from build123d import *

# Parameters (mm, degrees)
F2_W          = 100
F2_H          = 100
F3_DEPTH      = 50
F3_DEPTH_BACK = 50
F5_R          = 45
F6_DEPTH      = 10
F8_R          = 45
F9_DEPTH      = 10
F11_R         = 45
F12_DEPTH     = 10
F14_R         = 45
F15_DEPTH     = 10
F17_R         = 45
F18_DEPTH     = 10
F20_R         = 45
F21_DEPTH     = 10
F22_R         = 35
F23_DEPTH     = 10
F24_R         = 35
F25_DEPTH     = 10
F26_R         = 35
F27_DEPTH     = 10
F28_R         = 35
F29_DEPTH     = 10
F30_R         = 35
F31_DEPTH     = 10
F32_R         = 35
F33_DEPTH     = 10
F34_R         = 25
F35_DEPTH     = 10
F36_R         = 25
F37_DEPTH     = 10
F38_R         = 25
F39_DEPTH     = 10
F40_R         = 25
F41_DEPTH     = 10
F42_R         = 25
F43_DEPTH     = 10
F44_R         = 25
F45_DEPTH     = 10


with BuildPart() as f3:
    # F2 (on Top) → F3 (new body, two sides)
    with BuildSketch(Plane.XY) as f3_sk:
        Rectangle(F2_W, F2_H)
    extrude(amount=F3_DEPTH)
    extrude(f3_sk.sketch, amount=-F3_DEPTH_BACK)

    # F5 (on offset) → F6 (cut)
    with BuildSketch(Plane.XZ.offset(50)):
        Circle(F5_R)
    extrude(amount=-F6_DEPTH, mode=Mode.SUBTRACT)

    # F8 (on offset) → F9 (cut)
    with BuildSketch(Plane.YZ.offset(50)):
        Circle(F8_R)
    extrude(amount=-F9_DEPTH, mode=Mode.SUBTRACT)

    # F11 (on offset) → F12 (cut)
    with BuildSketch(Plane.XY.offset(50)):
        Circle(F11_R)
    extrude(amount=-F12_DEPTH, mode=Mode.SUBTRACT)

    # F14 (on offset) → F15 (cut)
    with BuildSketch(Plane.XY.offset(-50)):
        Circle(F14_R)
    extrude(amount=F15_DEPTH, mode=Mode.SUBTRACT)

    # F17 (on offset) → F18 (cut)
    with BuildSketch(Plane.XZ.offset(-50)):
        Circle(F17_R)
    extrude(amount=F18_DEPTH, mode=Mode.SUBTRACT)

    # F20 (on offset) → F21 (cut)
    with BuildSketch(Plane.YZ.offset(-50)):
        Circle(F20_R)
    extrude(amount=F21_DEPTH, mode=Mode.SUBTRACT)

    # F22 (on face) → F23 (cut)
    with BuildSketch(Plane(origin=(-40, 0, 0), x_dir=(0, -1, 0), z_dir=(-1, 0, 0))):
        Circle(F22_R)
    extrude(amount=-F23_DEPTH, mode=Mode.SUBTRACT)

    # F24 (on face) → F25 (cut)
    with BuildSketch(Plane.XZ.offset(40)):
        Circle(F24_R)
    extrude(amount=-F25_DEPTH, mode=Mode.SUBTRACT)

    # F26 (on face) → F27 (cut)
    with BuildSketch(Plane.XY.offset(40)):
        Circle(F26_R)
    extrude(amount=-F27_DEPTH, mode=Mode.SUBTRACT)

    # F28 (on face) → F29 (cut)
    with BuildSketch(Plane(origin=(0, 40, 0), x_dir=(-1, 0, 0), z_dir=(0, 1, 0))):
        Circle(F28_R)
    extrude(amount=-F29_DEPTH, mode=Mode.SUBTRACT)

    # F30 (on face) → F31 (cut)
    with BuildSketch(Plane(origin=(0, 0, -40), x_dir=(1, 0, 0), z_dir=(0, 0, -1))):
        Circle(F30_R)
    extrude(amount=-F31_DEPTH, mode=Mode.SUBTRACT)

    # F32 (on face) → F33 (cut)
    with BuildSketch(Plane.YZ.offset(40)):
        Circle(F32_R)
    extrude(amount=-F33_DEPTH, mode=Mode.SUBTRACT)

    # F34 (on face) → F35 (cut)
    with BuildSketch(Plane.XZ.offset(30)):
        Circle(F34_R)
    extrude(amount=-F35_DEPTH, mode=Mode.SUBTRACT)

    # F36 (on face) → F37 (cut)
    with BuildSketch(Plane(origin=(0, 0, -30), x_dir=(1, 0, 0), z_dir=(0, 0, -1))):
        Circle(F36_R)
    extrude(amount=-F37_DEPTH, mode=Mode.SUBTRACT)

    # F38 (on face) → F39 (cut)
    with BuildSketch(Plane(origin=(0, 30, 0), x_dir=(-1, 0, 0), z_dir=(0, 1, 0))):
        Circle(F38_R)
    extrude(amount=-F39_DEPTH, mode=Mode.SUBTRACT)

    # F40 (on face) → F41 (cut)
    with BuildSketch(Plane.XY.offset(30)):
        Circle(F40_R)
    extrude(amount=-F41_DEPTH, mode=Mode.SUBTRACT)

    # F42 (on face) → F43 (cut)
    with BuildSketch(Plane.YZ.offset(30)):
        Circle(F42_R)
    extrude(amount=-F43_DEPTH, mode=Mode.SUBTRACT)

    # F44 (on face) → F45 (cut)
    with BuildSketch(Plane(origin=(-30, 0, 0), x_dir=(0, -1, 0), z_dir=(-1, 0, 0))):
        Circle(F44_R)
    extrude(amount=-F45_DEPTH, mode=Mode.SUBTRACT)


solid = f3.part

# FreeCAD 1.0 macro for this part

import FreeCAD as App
import Part
import Sketcher

V = App.Vector
Q = App.Units.Quantity


def add_polygon(sketch, points):
    """Adds a closed chain of lines whose ends are joined by coincident constraints."""
    first, n = sketch.GeometryCount, len(points)
    for a, b in zip(points, points[1:] + points[:1]):
        sketch.addGeometry(Part.LineSegment(App.Vector(*a, 0), App.Vector(*b, 0)), False)
    for i in range(n):
        sketch.addConstraint(Sketcher.Constraint("Coincident", first + i, 2, first + (i + 1) % n, 1))

doc = App.newDocument("Part")
body = doc.addObject("PartDesign::Body", "Body")

# Sketch on XY plane
sketch1 = body.newObject("Sketcher::SketchObject", "Sketch")
sketch1.AttachmentSupport = (doc.getObject("XY_Plane"), [""])
sketch1.MapMode = "FlatFace"
add_polygon(sketch1, [(-50, 50), (-50, -50), (50, -50), (50, 50)])  # lines 0-3
sketch1.addConstraint(Sketcher.Constraint("Vertical", 0))
sketch1.addConstraint(Sketcher.Constraint("Horizontal", 1))
sketch1.addConstraint(Sketcher.Constraint("Vertical", 2))
sketch1.addConstraint(Sketcher.Constraint("Horizontal", 3))
sketch1.addConstraint(Sketcher.Constraint("Symmetric", 0, 2, 2, 2, -1, 1))
sketch1.addConstraint(Sketcher.Constraint("Equal", 3, 0))
sketch1.addConstraint(Sketcher.Constraint("DistanceX", 1, 1, 1, 2, Q("100 mm")))
pad1 = body.newObject("PartDesign::Pad", "Pad")
pad1.Profile = sketch1
pad1.Type = "TwoLengths"
pad1.Length = 50
pad1.Length2 = 50

# Sketch on XZ plane
sketch2 = body.newObject("Sketcher::SketchObject", "Sketch001")
sketch2.AttachmentSupport = (doc.getObject("XZ_Plane"), [""])
sketch2.MapMode = "FlatFace"
sketch2.AttachmentOffset = App.Placement(V(0, 0, 50), App.Rotation())
sketch2.addGeometry(Part.Circle(V(0, 0, 0), V(0, 0, 1), 45), False)
sketch2.addConstraint(Sketcher.Constraint("Coincident", 0, 3, -1, 1))
sketch2.addConstraint(Sketcher.Constraint("Diameter", 0, Q("90 mm")))
pocket1 = body.newObject("PartDesign::Pocket", "Pocket")
pocket1.Profile = sketch2
pocket1.Length = 10

# Sketch on YZ plane
sketch3 = body.newObject("Sketcher::SketchObject", "Sketch002")
sketch3.AttachmentSupport = (doc.getObject("YZ_Plane"), [""])
sketch3.MapMode = "FlatFace"
sketch3.AttachmentOffset = App.Placement(V(0, 0, 50), App.Rotation())
sketch3.addGeometry(Part.Circle(V(0, 0, 0), V(0, 0, 1), 45), False)
sketch3.addConstraint(Sketcher.Constraint("Coincident", 0, 3, -1, 1))
sketch3.addConstraint(Sketcher.Constraint("Diameter", 0, Q("90 mm")))
pocket2 = body.newObject("PartDesign::Pocket", "Pocket001")
pocket2.Profile = sketch3
pocket2.Length = 10

# Sketch on XY plane
sketch4 = body.newObject("Sketcher::SketchObject", "Sketch003")
sketch4.AttachmentSupport = (doc.getObject("XY_Plane"), [""])
sketch4.MapMode = "FlatFace"
sketch4.AttachmentOffset = App.Placement(V(0, 0, 50), App.Rotation())
sketch4.addGeometry(Part.Circle(V(0, 0, 0), V(0, 0, 1), 45), False)
sketch4.addConstraint(Sketcher.Constraint("Coincident", 0, 3, -1, 1))
sketch4.addConstraint(Sketcher.Constraint("Diameter", 0, Q("90 mm")))
pocket3 = body.newObject("PartDesign::Pocket", "Pocket002")
pocket3.Profile = sketch4
pocket3.Length = 10

# Sketch on XY plane
sketch5 = body.newObject("Sketcher::SketchObject", "Sketch004")
sketch5.AttachmentSupport = (doc.getObject("XY_Plane"), [""])
sketch5.MapMode = "FlatFace"
sketch5.AttachmentOffset = App.Placement(V(0, 0, -50), App.Rotation())
sketch5.addGeometry(Part.Circle(V(0, 0, 0), V(0, 0, 1), 45), False)
sketch5.addConstraint(Sketcher.Constraint("Coincident", 0, 3, -1, 1))
sketch5.addConstraint(Sketcher.Constraint("Diameter", 0, Q("90 mm")))
pocket4 = body.newObject("PartDesign::Pocket", "Pocket003")
pocket4.Profile = sketch5
pocket4.Length = 10
pocket4.Reversed = True

# Sketch on XZ plane
sketch6 = body.newObject("Sketcher::SketchObject", "Sketch005")
sketch6.AttachmentSupport = (doc.getObject("XZ_Plane"), [""])
sketch6.MapMode = "FlatFace"
sketch6.AttachmentOffset = App.Placement(V(0, 0, -50), App.Rotation())
sketch6.addGeometry(Part.Circle(V(0, 0, 0), V(0, 0, 1), 45), False)
sketch6.addConstraint(Sketcher.Constraint("Coincident", 0, 3, -1, 1))
sketch6.addConstraint(Sketcher.Constraint("Diameter", 0, Q("90 mm")))
pocket5 = body.newObject("PartDesign::Pocket", "Pocket004")
pocket5.Profile = sketch6
pocket5.Length = 10
pocket5.Reversed = True

# Sketch on YZ plane
sketch7 = body.newObject("Sketcher::SketchObject", "Sketch006")
sketch7.AttachmentSupport = (doc.getObject("YZ_Plane"), [""])
sketch7.MapMode = "FlatFace"
sketch7.AttachmentOffset = App.Placement(V(0, 0, -50), App.Rotation())
sketch7.addGeometry(Part.Circle(V(0, 0, 0), V(0, 0, 1), 45), False)
sketch7.addConstraint(Sketcher.Constraint("Coincident", 0, 3, -1, 1))
sketch7.addConstraint(Sketcher.Constraint("Diameter", 0, Q("90 mm")))
pocket6 = body.newObject("PartDesign::Pocket", "Pocket005")
pocket6.Profile = sketch7
pocket6.Length = 10
pocket6.Reversed = True

# Sketch on YZ plane
sketch8 = body.newObject("Sketcher::SketchObject", "Sketch007")
sketch8.AttachmentSupport = (doc.getObject("YZ_Plane"), [""])
sketch8.MapMode = "FlatFace"
sketch8.AttachmentOffset = App.Placement(V(0, 0, -40), App.Rotation())
sketch8.addGeometry(Part.Circle(V(0, 0, 0), V(0, 0, 1), 35), False)
sketch8.addConstraint(Sketcher.Constraint("Coincident", 0, 3, -1, 1))
sketch8.addConstraint(Sketcher.Constraint("Diameter", 0, Q("70 mm")))
pocket7 = body.newObject("PartDesign::Pocket", "Pocket006")
pocket7.Profile = sketch8
pocket7.Length = 10
pocket7.Reversed = True

# Sketch on XZ plane
sketch9 = body.newObject("Sketcher::SketchObject", "Sketch008")
sketch9.AttachmentSupport = (doc.getObject("XZ_Plane"), [""])
sketch9.MapMode = "FlatFace"
sketch9.AttachmentOffset = App.Placement(V(0, 0, 40), App.Rotation())
sketch9.addGeometry(Part.Circle(V(0, 0, 0), V(0, 0, 1), 35), False)
sketch9.addConstraint(Sketcher.Constraint("Coincident", 0, 3, -1, 1))
sketch9.addConstraint(Sketcher.Constraint("Diameter", 0, Q("70 mm")))
pocket8 = body.newObject("PartDesign::Pocket", "Pocket007")
pocket8.Profile = sketch9
pocket8.Length = 10

# Sketch on XY plane
sketch10 = body.newObject("Sketcher::SketchObject", "Sketch009")
sketch10.AttachmentSupport = (doc.getObject("XY_Plane"), [""])
sketch10.MapMode = "FlatFace"
sketch10.AttachmentOffset = App.Placement(V(0, 0, 40), App.Rotation())
sketch10.addGeometry(Part.Circle(V(0, 0, 0), V(0, 0, 1), 35), False)
sketch10.addConstraint(Sketcher.Constraint("Coincident", 0, 3, -1, 1))
sketch10.addConstraint(Sketcher.Constraint("Diameter", 0, Q("70 mm")))
pocket9 = body.newObject("PartDesign::Pocket", "Pocket008")
pocket9.Profile = sketch10
pocket9.Length = 10

# Sketch on XZ plane
sketch11 = body.newObject("Sketcher::SketchObject", "Sketch010")
sketch11.AttachmentSupport = (doc.getObject("XZ_Plane"), [""])
sketch11.MapMode = "FlatFace"
sketch11.AttachmentOffset = App.Placement(V(0, 0, -40), App.Rotation())
sketch11.addGeometry(Part.Circle(V(0, 0, 0), V(0, 0, 1), 35), False)
sketch11.addConstraint(Sketcher.Constraint("Coincident", 0, 3, -1, 1))
sketch11.addConstraint(Sketcher.Constraint("Diameter", 0, Q("70 mm")))
pocket10 = body.newObject("PartDesign::Pocket", "Pocket009")
pocket10.Profile = sketch11
pocket10.Length = 10
pocket10.Reversed = True

# Sketch on XY plane
sketch12 = body.newObject("Sketcher::SketchObject", "Sketch011")
sketch12.AttachmentSupport = (doc.getObject("XY_Plane"), [""])
sketch12.MapMode = "FlatFace"
sketch12.AttachmentOffset = App.Placement(V(0, 0, -40), App.Rotation())
sketch12.addGeometry(Part.Circle(V(0, 0, 0), V(0, 0, 1), 35), False)
sketch12.addConstraint(Sketcher.Constraint("Coincident", 0, 3, -1, 1))
sketch12.addConstraint(Sketcher.Constraint("Diameter", 0, Q("70 mm")))
pocket11 = body.newObject("PartDesign::Pocket", "Pocket010")
pocket11.Profile = sketch12
pocket11.Length = 10
pocket11.Reversed = True

# Sketch on YZ plane
sketch13 = body.newObject("Sketcher::SketchObject", "Sketch012")
sketch13.AttachmentSupport = (doc.getObject("YZ_Plane"), [""])
sketch13.MapMode = "FlatFace"
sketch13.AttachmentOffset = App.Placement(V(0, 0, 40), App.Rotation())
sketch13.addGeometry(Part.Circle(V(0, 0, 0), V(0, 0, 1), 35), False)
sketch13.addConstraint(Sketcher.Constraint("Coincident", 0, 3, -1, 1))
sketch13.addConstraint(Sketcher.Constraint("Diameter", 0, Q("70 mm")))
pocket12 = body.newObject("PartDesign::Pocket", "Pocket011")
pocket12.Profile = sketch13
pocket12.Length = 10

# Sketch on XZ plane
sketch14 = body.newObject("Sketcher::SketchObject", "Sketch013")
sketch14.AttachmentSupport = (doc.getObject("XZ_Plane"), [""])
sketch14.MapMode = "FlatFace"
sketch14.AttachmentOffset = App.Placement(V(0, 0, 30), App.Rotation())
sketch14.addGeometry(Part.Circle(V(0, 0, 0), V(0, 0, 1), 25), False)
sketch14.addConstraint(Sketcher.Constraint("Coincident", 0, 3, -1, 1))
sketch14.addConstraint(Sketcher.Constraint("Diameter", 0, Q("50 mm")))
pocket13 = body.newObject("PartDesign::Pocket", "Pocket012")
pocket13.Profile = sketch14
pocket13.Length = 10

# Sketch on XY plane
sketch15 = body.newObject("Sketcher::SketchObject", "Sketch014")
sketch15.AttachmentSupport = (doc.getObject("XY_Plane"), [""])
sketch15.MapMode = "FlatFace"
sketch15.AttachmentOffset = App.Placement(V(0, 0, -30), App.Rotation())
sketch15.addGeometry(Part.Circle(V(0, 0, 0), V(0, 0, 1), 25), False)
sketch15.addConstraint(Sketcher.Constraint("Coincident", 0, 3, -1, 1))
sketch15.addConstraint(Sketcher.Constraint("Diameter", 0, Q("50 mm")))
pocket14 = body.newObject("PartDesign::Pocket", "Pocket013")
pocket14.Profile = sketch15
pocket14.Length = 10
pocket14.Reversed = True

# Sketch on XZ plane
sketch16 = body.newObject("Sketcher::SketchObject", "Sketch015")
sketch16.AttachmentSupport = (doc.getObject("XZ_Plane"), [""])
sketch16.MapMode = "FlatFace"
sketch16.AttachmentOffset = App.Placement(V(0, 0, -30), App.Rotation())
sketch16.addGeometry(Part.Circle(V(0, 0, 0), V(0, 0, 1), 25), False)
sketch16.addConstraint(Sketcher.Constraint("Coincident", 0, 3, -1, 1))
sketch16.addConstraint(Sketcher.Constraint("Diameter", 0, Q("50 mm")))
pocket15 = body.newObject("PartDesign::Pocket", "Pocket014")
pocket15.Profile = sketch16
pocket15.Length = 10
pocket15.Reversed = True

# Sketch on XY plane
sketch17 = body.newObject("Sketcher::SketchObject", "Sketch016")
sketch17.AttachmentSupport = (doc.getObject("XY_Plane"), [""])
sketch17.MapMode = "FlatFace"
sketch17.AttachmentOffset = App.Placement(V(0, 0, 30), App.Rotation())
sketch17.addGeometry(Part.Circle(V(0, 0, 0), V(0, 0, 1), 25), False)
sketch17.addConstraint(Sketcher.Constraint("Coincident", 0, 3, -1, 1))
sketch17.addConstraint(Sketcher.Constraint("Diameter", 0, Q("50 mm")))
pocket16 = body.newObject("PartDesign::Pocket", "Pocket015")
pocket16.Profile = sketch17
pocket16.Length = 10

# Sketch on YZ plane
sketch18 = body.newObject("Sketcher::SketchObject", "Sketch017")
sketch18.AttachmentSupport = (doc.getObject("YZ_Plane"), [""])
sketch18.MapMode = "FlatFace"
sketch18.AttachmentOffset = App.Placement(V(0, 0, 30), App.Rotation())
sketch18.addGeometry(Part.Circle(V(0, 0, 0), V(0, 0, 1), 25), False)
sketch18.addConstraint(Sketcher.Constraint("Coincident", 0, 3, -1, 1))
sketch18.addConstraint(Sketcher.Constraint("Diameter", 0, Q("50 mm")))
pocket17 = body.newObject("PartDesign::Pocket", "Pocket016")
pocket17.Profile = sketch18
pocket17.Length = 10

# Sketch on YZ plane
sketch19 = body.newObject("Sketcher::SketchObject", "Sketch018")
sketch19.AttachmentSupport = (doc.getObject("YZ_Plane"), [""])
sketch19.MapMode = "FlatFace"
sketch19.AttachmentOffset = App.Placement(V(0, 0, -30), App.Rotation())
sketch19.addGeometry(Part.Circle(V(0, 0, 0), V(0, 0, 1), 25), False)
sketch19.addConstraint(Sketcher.Constraint("Coincident", 0, 3, -1, 1))
sketch19.addConstraint(Sketcher.Constraint("Diameter", 0, Q("50 mm")))
pocket18 = body.newObject("PartDesign::Pocket", "Pocket017")
pocket18.Profile = sketch19
pocket18.Length = 10
pocket18.Reversed = True

doc.recompute()
